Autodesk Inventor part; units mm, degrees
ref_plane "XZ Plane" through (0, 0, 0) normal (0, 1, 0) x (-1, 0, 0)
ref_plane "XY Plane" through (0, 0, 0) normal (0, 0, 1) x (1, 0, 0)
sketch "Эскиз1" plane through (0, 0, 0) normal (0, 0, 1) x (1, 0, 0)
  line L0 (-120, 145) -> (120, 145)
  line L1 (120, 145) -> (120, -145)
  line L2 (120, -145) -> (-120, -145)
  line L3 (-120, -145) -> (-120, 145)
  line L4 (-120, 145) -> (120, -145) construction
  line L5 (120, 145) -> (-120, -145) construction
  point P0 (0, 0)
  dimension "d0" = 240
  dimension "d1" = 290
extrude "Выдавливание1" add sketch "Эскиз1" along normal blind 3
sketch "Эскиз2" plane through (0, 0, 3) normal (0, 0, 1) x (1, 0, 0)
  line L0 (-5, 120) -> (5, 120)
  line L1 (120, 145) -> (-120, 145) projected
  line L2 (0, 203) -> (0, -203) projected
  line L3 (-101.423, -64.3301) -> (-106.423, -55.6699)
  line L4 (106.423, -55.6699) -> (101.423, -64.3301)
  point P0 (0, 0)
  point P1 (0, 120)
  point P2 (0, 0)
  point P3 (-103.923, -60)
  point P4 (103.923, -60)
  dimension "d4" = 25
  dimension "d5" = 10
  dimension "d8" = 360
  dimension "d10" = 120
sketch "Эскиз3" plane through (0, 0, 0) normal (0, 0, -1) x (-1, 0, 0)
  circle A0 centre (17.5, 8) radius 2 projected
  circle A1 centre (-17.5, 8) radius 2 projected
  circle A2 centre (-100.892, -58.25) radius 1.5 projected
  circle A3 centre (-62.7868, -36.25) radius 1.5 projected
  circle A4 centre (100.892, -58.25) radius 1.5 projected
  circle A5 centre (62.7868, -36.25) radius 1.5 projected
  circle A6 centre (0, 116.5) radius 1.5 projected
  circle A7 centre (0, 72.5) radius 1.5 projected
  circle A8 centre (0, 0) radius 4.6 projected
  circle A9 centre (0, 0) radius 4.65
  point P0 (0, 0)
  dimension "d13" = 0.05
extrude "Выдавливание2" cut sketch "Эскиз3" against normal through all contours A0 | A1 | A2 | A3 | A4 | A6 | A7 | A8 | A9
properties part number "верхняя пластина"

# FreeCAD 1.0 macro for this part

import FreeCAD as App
import Part
import Sketcher

doc = App.newDocument("Part")
body = doc.addObject("PartDesign::Body", "Body")

# Sketch on XY plane
sketch1 = doc.addObject("Sketcher::SketchObject", "Sketch")
body.addObject(sketch1)
sketch1.AttachmentSupport = (doc.XY_Plane, [""])
sketch1.MapMode = "FlatFace"
sketch1.addGeometry([
    Part.LineSegment(App.Vector(120, 145, 0), App.Vector(-120, 145, 0)),
    Part.LineSegment(App.Vector(-120, 145, 0), App.Vector(-120, -145, 0)),
    Part.LineSegment(App.Vector(-120, -145, 0), App.Vector(120, -145, 0)),
    Part.LineSegment(App.Vector(120, -145, 0), App.Vector(120, 145, 0)),
], False)
sketch1.addConstraint([
    Sketcher.Constraint("Coincident", 0, 2, 1, 1),
    Sketcher.Constraint("Coincident", 1, 2, 2, 1),
    Sketcher.Constraint("Coincident", 2, 2, 3, 1),
    Sketcher.Constraint("Coincident", 3, 2, 0, 1),
    Sketcher.Constraint("Horizontal", 0),
    Sketcher.Constraint("Vertical", 1),
    Sketcher.Constraint("Horizontal", 2),
    Sketcher.Constraint("Vertical", 3),
    Sketcher.Constraint("Symmetric", 0, 2, 2, 2, -1, 1),
    Sketcher.Constraint("DistanceX", 0, 2, 0, 1, 240.0),
    Sketcher.Constraint("DistanceY", 1, 2, 1, 1, 290.0),
])
pad1 = doc.addObject("PartDesign::Pad", "Pad")
body.addObject(pad1)
pad1.Profile = sketch1
pad1.Length = 3

# Sketch on XY plane
sketch2 = doc.addObject("Sketcher::SketchObject", "Sketch001")
body.addObject(sketch2)
sketch2.AttachmentSupport = (doc.XY_Plane, [""])
sketch2.MapMode = "FlatFace"
sketch2.addGeometry([
    Part.Circle(App.Vector(-17.5, 8, 0), App.Vector(0, 0, 1), 2),  # 0
    Part.Circle(App.Vector(17.5, 8, 0), App.Vector(0, 0, 1), 2),  # 1
    Part.Circle(App.Vector(100.9, -58.2, 0), App.Vector(0, 0, 1), 1.5),  # 2
    Part.Circle(App.Vector(62.8, -36.2, 0), App.Vector(0, 0, 1), 1.5),  # 3
    Part.Circle(App.Vector(-100.9, -58.2, 0), App.Vector(0, 0, 1), 1.5),  # 4
    Part.Circle(App.Vector(0, 116.5, 0), App.Vector(0, 0, 1), 1.5),  # 5
    Part.Circle(App.Vector(0, 72.5, 0), App.Vector(0, 0, 1), 1.5),  # 6
    Part.Circle(App.Vector(0, 0, 0), App.Vector(0, 0, 1), 4.7),  # 7
], False)
sketch2.addConstraint([
    Sketcher.Constraint("Coincident", 7, 3, -1, 1),
    Sketcher.Constraint("Equal", 0, 1),
    Sketcher.Constraint("Equal", 2, 3),
    Sketcher.Constraint("Equal", 3, 4),
    Sketcher.Constraint("Equal", 4, 5),
    Sketcher.Constraint("Equal", 5, 6),
    Sketcher.Constraint("Symmetric", 0, 3, 1, 3, -2),
    Sketcher.Constraint("Symmetric", 2, 3, 4, 3, -2),
    Sketcher.Constraint("PointOnObject", 5, 3, -2),
    Sketcher.Constraint("PointOnObject", 6, 3, -2),
    Sketcher.Constraint("Diameter", 0, 4.0),
    Sketcher.Constraint("Diameter", 2, 3.0),
    Sketcher.Constraint("Diameter", 7, 9.3),
    Sketcher.Constraint("DistanceY", -1, 1, 0, 3, 8.0),
    Sketcher.Constraint("DistanceX", 0, 3, 1, 3, 35.0),
    Sketcher.Constraint("DistanceY", 2, 3, 3, 3, 22.0),
    Sketcher.Constraint("DistanceY", 6, 3, 5, 3, 44.0),
    Sketcher.Constraint("DistanceY", -1, 1, 5, 3, 116.5),
    Sketcher.Constraint("DistanceY", 2, 3, -1, 1, 58.25),
    Sketcher.Constraint("DistanceX", -1, 1, 2, 3, 100.892),
    Sketcher.Constraint("DistanceX", -1, 1, 3, 3, 62.7868),
])
pocket1 = doc.addObject("PartDesign::Pocket", "Pocket")
body.addObject(pocket1)
pocket1.Profile = sketch2
pocket1.Type = "ThroughAll"
pocket1.Reversed = True

doc.recompute()
